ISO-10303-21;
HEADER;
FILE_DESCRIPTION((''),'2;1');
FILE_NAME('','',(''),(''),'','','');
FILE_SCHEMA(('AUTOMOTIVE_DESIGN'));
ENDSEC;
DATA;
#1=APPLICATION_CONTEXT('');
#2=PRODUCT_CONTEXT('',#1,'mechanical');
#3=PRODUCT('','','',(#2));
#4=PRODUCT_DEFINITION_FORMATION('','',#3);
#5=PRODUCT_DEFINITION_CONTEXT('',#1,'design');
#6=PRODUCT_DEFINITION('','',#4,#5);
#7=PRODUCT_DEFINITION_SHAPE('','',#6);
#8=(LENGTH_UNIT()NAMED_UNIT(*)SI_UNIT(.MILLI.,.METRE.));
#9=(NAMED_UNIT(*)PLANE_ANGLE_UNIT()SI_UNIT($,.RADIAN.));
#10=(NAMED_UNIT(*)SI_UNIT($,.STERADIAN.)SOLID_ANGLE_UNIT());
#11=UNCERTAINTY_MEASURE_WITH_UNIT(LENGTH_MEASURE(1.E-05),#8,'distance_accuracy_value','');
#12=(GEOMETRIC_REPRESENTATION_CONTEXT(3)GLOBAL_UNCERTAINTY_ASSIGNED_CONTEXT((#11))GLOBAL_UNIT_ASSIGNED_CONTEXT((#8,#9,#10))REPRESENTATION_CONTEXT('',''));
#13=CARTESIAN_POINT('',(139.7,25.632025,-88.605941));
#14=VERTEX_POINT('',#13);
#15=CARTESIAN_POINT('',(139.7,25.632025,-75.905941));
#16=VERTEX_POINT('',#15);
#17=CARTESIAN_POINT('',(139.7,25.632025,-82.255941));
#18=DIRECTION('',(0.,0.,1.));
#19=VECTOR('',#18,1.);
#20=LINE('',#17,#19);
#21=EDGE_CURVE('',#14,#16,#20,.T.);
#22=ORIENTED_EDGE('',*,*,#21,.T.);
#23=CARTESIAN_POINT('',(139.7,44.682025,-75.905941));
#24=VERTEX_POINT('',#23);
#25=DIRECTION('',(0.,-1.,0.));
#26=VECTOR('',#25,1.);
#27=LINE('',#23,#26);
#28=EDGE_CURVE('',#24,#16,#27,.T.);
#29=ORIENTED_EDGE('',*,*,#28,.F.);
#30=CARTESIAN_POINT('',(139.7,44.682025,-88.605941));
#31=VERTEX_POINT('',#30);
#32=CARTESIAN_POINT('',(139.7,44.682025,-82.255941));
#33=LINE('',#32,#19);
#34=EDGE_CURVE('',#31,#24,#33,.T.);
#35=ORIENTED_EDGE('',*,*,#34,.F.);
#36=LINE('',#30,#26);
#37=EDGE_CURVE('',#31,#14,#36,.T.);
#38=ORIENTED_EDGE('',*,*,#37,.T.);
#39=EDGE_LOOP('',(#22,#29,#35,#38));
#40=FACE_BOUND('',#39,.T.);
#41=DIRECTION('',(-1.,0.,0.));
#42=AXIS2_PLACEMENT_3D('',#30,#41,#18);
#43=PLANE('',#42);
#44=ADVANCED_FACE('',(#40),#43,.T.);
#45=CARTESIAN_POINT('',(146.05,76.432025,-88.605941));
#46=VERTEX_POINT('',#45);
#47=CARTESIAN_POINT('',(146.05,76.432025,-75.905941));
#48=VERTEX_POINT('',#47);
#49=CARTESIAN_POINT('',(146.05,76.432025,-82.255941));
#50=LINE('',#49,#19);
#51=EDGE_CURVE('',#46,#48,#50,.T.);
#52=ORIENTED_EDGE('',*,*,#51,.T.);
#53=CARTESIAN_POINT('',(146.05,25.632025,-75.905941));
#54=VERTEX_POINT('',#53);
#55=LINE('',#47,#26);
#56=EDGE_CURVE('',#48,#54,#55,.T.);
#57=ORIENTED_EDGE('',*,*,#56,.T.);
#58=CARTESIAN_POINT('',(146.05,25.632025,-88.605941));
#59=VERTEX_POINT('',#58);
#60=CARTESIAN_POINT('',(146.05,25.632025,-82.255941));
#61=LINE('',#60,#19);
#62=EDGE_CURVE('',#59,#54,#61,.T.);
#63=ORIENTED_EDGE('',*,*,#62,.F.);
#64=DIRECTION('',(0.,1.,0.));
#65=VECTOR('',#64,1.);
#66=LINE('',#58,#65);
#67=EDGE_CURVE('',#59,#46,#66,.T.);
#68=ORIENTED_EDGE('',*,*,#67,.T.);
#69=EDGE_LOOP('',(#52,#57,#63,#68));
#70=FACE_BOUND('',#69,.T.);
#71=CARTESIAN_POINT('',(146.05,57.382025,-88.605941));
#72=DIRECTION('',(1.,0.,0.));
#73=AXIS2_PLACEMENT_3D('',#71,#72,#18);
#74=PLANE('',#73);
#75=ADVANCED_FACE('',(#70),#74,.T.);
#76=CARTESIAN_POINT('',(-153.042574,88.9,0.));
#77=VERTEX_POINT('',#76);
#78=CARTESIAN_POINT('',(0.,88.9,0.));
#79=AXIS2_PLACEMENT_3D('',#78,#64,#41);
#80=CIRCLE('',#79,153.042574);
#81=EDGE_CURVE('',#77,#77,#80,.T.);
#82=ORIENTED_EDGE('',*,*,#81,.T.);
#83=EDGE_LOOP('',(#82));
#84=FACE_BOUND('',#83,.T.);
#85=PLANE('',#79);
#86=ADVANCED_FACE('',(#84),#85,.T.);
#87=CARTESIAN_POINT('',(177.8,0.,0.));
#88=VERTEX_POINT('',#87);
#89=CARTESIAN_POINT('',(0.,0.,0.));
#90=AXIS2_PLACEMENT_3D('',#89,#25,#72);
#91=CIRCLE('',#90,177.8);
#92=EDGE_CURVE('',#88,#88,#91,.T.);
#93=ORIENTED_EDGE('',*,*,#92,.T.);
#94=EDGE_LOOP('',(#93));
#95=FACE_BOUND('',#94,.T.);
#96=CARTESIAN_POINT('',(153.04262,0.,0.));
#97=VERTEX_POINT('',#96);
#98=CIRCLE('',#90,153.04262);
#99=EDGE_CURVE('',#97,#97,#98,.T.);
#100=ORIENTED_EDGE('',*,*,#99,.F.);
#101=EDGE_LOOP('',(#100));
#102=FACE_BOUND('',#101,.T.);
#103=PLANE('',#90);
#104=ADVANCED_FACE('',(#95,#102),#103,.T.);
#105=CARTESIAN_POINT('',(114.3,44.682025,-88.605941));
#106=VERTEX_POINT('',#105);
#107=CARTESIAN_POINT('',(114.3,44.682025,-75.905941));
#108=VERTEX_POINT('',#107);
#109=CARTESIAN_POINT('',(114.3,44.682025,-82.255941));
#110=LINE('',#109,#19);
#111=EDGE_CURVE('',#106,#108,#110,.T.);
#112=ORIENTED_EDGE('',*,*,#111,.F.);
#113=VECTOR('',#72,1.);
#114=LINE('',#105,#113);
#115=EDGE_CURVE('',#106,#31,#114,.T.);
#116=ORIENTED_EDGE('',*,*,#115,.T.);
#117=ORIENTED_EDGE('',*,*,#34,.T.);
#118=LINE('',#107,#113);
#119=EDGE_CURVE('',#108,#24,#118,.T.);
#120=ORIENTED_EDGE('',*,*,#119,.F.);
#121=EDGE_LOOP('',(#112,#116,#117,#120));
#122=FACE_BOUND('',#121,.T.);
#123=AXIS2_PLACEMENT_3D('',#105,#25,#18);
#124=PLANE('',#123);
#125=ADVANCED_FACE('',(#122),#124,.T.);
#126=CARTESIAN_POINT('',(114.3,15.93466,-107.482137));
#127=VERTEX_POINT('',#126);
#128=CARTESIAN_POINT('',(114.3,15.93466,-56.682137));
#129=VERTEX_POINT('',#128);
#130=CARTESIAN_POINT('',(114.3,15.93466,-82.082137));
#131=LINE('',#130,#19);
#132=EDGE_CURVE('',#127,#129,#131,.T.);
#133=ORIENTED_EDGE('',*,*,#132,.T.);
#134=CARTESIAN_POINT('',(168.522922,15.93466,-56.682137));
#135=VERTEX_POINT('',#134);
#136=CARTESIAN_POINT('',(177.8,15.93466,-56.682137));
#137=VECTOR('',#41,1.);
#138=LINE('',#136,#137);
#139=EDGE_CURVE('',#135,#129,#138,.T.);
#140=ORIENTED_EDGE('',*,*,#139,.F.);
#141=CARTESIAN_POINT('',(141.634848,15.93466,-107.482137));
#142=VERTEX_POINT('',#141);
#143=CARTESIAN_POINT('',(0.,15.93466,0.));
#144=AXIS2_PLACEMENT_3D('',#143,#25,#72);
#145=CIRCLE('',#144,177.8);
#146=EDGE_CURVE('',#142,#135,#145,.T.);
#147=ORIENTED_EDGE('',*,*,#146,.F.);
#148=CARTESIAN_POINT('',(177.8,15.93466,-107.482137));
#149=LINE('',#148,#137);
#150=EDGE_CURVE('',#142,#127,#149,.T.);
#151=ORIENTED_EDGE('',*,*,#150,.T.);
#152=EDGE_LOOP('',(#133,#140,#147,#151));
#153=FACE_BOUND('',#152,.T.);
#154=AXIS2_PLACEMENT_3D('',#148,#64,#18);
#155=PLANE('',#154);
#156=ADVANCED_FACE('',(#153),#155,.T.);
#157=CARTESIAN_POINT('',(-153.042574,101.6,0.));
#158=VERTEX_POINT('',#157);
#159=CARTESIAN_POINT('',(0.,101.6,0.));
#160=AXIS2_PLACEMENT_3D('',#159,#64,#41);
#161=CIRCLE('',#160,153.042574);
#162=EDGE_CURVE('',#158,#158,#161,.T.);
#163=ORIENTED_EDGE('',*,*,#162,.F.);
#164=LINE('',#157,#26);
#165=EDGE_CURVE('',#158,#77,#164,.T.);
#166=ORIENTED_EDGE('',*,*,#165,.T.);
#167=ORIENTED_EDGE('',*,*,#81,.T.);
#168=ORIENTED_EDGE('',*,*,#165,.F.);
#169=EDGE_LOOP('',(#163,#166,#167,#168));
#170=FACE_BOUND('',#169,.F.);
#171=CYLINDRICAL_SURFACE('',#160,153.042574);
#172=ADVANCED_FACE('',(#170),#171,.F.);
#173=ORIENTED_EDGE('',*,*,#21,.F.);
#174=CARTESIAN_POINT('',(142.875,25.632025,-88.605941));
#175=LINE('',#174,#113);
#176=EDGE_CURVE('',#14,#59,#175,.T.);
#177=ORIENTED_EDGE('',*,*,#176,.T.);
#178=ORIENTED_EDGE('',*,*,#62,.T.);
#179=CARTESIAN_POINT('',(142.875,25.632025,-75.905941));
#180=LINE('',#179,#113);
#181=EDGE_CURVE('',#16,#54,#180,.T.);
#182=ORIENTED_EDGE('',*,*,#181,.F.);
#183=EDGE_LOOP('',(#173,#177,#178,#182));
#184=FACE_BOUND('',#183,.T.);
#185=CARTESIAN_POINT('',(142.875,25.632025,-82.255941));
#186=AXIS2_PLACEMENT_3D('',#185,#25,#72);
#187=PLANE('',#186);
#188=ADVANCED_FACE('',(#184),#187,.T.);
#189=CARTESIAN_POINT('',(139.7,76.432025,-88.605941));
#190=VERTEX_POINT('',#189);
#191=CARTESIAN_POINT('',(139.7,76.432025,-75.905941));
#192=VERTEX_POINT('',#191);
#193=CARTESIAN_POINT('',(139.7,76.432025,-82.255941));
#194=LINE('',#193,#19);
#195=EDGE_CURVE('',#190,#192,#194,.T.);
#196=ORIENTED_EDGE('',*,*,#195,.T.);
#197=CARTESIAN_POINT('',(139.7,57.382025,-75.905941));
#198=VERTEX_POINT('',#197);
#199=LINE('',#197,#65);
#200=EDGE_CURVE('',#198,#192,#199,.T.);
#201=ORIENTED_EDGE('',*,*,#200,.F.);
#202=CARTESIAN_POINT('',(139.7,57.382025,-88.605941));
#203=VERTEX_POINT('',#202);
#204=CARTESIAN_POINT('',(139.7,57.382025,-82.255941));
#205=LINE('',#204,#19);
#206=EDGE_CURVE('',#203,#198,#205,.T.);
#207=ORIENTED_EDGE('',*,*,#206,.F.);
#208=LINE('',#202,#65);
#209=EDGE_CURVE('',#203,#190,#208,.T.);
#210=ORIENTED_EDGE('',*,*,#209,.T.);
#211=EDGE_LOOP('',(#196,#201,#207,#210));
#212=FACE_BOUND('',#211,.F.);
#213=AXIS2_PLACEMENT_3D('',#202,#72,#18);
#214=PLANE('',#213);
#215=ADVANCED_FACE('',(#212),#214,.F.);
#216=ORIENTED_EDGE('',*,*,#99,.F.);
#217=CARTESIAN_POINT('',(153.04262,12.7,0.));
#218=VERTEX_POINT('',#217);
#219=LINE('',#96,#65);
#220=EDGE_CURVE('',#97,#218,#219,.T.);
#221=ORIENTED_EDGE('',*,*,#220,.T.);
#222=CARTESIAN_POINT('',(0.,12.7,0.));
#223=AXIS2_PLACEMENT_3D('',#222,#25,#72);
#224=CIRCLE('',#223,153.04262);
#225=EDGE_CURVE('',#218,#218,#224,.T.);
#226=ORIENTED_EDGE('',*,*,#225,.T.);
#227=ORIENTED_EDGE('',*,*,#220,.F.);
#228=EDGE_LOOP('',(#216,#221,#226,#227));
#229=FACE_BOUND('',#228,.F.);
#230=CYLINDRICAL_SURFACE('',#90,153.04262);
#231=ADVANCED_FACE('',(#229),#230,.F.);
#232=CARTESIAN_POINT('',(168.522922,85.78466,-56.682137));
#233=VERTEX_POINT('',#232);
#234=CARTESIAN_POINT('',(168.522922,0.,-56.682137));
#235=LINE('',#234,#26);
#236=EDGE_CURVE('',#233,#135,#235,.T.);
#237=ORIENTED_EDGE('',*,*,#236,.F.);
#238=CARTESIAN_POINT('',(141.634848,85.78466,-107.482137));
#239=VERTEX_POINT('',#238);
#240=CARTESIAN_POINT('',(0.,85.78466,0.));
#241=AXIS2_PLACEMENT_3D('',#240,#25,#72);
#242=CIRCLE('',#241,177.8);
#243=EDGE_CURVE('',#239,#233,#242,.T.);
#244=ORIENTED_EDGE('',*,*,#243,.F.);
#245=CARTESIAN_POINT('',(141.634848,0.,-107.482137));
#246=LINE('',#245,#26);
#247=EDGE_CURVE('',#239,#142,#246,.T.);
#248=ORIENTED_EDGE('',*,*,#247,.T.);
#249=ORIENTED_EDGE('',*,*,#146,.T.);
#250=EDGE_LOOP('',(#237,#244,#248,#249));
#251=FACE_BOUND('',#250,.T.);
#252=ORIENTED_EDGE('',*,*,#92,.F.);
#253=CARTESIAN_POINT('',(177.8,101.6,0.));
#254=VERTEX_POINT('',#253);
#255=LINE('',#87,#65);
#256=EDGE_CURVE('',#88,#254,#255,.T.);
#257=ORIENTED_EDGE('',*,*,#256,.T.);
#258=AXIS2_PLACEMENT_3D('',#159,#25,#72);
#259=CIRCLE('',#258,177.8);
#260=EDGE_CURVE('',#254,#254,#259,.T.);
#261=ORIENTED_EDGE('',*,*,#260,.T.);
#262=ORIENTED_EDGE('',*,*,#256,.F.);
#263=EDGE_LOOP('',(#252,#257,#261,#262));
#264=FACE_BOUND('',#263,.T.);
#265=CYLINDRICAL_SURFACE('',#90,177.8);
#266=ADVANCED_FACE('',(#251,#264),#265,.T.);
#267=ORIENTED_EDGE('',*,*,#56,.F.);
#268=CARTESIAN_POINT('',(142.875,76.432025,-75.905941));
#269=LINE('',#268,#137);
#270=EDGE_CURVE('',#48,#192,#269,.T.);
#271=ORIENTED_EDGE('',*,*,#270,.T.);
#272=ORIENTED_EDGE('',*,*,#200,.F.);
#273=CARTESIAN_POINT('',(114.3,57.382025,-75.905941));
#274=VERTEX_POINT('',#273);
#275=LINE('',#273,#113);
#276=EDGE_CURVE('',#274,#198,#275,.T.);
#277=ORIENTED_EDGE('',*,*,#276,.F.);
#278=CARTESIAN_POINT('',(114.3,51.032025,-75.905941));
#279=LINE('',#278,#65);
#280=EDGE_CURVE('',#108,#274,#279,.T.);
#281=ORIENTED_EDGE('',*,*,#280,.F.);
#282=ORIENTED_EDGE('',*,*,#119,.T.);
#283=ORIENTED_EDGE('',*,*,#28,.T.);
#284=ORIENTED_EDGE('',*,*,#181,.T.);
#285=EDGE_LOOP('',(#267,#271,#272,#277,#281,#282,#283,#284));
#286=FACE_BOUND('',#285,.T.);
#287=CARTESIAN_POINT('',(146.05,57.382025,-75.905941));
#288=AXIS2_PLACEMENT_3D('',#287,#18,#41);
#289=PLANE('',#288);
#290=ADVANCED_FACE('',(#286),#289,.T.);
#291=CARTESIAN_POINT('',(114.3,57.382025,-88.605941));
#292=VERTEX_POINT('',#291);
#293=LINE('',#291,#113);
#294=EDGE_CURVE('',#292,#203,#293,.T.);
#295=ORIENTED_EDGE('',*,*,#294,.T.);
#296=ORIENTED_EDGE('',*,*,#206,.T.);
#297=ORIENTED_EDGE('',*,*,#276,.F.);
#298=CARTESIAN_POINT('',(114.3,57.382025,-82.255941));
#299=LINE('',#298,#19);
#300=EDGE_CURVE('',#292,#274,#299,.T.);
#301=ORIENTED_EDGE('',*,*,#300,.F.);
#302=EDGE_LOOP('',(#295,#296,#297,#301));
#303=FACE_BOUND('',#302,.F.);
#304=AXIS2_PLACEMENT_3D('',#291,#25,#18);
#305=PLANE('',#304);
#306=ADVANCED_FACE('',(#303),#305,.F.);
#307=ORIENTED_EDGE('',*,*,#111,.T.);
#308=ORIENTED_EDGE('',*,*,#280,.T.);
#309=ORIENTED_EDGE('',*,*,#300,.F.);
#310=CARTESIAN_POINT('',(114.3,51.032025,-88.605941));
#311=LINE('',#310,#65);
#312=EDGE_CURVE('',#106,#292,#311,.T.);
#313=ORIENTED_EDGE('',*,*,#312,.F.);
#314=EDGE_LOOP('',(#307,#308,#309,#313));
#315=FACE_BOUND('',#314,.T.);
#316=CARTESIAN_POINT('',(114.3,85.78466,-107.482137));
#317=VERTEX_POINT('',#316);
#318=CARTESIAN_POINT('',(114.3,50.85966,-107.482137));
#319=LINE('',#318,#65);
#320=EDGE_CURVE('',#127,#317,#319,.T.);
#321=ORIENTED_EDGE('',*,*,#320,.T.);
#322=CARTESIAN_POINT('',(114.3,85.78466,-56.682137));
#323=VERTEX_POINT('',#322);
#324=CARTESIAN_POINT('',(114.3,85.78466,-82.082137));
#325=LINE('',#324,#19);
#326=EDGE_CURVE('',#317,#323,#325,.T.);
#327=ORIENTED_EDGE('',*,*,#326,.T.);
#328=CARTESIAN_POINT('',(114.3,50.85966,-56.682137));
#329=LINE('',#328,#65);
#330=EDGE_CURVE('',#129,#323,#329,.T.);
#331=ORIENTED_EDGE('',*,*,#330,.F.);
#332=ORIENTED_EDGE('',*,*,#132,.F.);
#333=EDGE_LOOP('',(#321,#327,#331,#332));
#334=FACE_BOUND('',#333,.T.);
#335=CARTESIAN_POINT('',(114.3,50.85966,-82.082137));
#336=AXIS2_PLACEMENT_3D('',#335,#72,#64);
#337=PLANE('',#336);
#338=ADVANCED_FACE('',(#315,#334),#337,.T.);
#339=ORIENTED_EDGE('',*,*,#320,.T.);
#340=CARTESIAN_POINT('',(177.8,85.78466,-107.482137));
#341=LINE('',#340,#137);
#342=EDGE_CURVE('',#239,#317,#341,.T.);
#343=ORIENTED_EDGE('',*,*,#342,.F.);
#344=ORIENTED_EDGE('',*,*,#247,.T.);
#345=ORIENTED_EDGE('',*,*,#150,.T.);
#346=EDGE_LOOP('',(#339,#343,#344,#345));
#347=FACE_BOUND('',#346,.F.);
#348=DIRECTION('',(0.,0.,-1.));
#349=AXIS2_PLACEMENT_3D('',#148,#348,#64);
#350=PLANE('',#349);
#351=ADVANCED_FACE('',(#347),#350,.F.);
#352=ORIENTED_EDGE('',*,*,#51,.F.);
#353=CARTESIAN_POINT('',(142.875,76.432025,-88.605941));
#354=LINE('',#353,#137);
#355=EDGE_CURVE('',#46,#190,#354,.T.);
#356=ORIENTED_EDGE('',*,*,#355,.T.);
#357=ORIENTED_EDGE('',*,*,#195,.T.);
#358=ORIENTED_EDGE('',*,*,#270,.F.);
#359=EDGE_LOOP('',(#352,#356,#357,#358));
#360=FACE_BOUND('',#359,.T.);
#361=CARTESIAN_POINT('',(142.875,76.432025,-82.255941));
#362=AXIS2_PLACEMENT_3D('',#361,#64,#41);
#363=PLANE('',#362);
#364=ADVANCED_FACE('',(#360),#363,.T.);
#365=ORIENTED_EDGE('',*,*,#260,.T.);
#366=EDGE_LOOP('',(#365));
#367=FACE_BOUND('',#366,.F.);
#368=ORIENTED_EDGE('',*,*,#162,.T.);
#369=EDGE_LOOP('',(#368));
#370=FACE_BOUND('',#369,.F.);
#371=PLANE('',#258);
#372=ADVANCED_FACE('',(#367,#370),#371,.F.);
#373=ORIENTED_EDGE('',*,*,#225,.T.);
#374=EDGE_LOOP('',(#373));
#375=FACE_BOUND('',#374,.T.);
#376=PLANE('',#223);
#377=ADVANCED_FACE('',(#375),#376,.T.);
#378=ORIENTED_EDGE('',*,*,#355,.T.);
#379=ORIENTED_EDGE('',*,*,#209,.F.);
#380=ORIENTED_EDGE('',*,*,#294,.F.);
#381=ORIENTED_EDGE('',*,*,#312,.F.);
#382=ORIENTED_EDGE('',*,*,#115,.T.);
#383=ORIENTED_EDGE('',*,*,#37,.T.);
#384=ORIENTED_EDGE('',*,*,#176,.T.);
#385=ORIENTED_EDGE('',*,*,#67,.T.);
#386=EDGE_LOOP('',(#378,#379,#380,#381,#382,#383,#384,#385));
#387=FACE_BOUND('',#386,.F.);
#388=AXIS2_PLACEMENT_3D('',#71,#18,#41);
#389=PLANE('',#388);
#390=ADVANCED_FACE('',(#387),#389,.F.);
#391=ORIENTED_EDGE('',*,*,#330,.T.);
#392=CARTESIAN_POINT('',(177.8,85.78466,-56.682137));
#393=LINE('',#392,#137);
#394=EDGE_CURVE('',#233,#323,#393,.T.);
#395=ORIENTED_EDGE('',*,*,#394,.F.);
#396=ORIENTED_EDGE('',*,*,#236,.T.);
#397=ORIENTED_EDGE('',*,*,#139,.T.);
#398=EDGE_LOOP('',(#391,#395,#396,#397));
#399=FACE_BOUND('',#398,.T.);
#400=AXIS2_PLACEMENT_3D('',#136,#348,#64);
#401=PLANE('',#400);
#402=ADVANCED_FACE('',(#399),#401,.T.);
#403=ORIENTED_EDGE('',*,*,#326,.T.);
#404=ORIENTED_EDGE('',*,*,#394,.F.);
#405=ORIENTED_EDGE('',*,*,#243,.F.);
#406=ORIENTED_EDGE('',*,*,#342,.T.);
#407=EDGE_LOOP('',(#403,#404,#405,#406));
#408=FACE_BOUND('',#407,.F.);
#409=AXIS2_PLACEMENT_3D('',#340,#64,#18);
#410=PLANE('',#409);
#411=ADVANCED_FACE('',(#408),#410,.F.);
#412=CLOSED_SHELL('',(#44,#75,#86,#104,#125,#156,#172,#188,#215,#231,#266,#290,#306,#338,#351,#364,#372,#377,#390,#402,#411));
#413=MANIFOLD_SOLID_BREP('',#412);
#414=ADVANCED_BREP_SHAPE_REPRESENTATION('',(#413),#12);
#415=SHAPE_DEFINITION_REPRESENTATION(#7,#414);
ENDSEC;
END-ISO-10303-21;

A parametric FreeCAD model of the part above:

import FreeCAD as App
import Part
import Sketcher

V = App.Vector
Q = App.Units.Quantity


def add_polygon(sketch, points):
    """Adds a closed chain of lines whose ends are joined by coincident constraints."""
    first, n = sketch.GeometryCount, len(points)
    for a, b in zip(points, points[1:] + points[:1]):
        sketch.addGeometry(Part.LineSegment(App.Vector(*a, 0), App.Vector(*b, 0)), False)
    for i in range(n):
        sketch.addConstraint(Sketcher.Constraint("Coincident", first + i, 2, first + (i + 1) % n, 1))

doc = App.newDocument("Part")
body = doc.addObject("PartDesign::Body", "Body")

# Sketch on XZ plane
sketch1 = body.newObject("Sketcher::SketchObject", "Sketch")
sketch1.AttachmentSupport = (doc.getObject("XZ_Plane"), [""])
sketch1.MapMode = "FlatFace"
sketch1.addGeometry(Part.Circle(V(0, 0, 0), V(0, 0, 1), 178), False)
sketch1.addConstraint(Sketcher.Constraint("Coincident", 0, 3, -1, 1))
sketch1.addConstraint(Sketcher.Constraint("Diameter", 0, Q("14 in")))
pad1 = body.newObject("PartDesign::Pad", "Pad")
pad1.Profile = sketch1
pad1.Length = Q("4 in")
pad1.Reversed = True

# Sketch on XZ plane
sketch2 = body.newObject("Sketcher::SketchObject", "Sketch001")
sketch2.AttachmentSupport = (doc.getObject("XZ_Plane"), [""])
sketch2.MapMode = "FlatFace"
sketch2.AttachmentOffset = App.Placement(V(0, 0, -4 * 25.4), App.Rotation())
sketch2.addGeometry(Part.Circle(V(0, 0, 0), V(0, 0, 1), 153), False)
sketch2.addConstraint(Sketcher.Constraint("Coincident", 0, 3, -1, 1))
sketch2.addConstraint(Sketcher.Constraint("Diameter", 0, Q("306.085148 mm")))
pocket1 = body.newObject("PartDesign::Pocket", "Pocket")
pocket1.Profile = sketch2
pocket1.Length = Q("0.5 in")
pocket1.Reversed = True

# Sketch on XZ plane
sketch3 = body.newObject("Sketcher::SketchObject", "Sketch002")
sketch3.AttachmentSupport = (doc.getObject("XZ_Plane"), [""])
sketch3.MapMode = "FlatFace"
sketch3.addGeometry(Part.Circle(V(0, 0, 0), V(0, 0, 1), 153), False)
sketch3.addConstraint(Sketcher.Constraint("Coincident", 0, 3, -1, 1))
sketch3.addConstraint(Sketcher.Constraint("Diameter", 0, Q("12.0506 in")))
pocket2 = body.newObject("PartDesign::Pocket", "Pocket001")
pocket2.Profile = sketch3
pocket2.Length = Q("0.5 in")

# Sketch on YZ plane
sketch4 = body.newObject("Sketcher::SketchObject", "Sketch003")
sketch4.AttachmentSupport = (doc.getObject("YZ_Plane"), [""])
sketch4.MapMode = "FlatFace"
sketch4.AttachmentOffset = App.Placement(V(0, 0, 7 * 25.4), App.Rotation())
add_polygon(sketch4, [(16, -57), (16, -107), (86, -107), (86, -57)])  # lines 0-3
sketch4.addConstraint(Sketcher.Constraint("Vertical", 0))
sketch4.addConstraint(Sketcher.Constraint("Horizontal", 1))
sketch4.addConstraint(Sketcher.Constraint("Vertical", 2))
sketch4.addConstraint(Sketcher.Constraint("Horizontal", 3))
sketch4.addConstraint(Sketcher.Constraint("DistanceY", 0, 2, 0, 1, Q("2 in")))
sketch4.addConstraint(Sketcher.Constraint("DistanceX", 1, 1, 1, 2, Q("2.75 in")))
sketch4.addConstraint(Sketcher.Constraint("DistanceX", -1, 1, 0, 2, Q("15.93466 mm")))
sketch4.addConstraint(Sketcher.Constraint("DistanceY", 0, 2, -1, 1, Q("107.482137 mm")))
pocket3 = body.newObject("PartDesign::Pocket", "Pocket002")
pocket3.Profile = sketch4
pocket3.Length = Q("2.5 in")

# Sketch on YZ plane
sketch5 = body.newObject("Sketcher::SketchObject", "Sketch004")
sketch5.AttachmentSupport = (doc.getObject("YZ_Plane"), [""])
sketch5.MapMode = "FlatFace"
sketch5.AttachmentOffset = App.Placement(V(0, 0, 4.5 * 25.4), App.Rotation())
add_polygon(sketch5, [(45, -76), (45, -89), (57, -89), (57, -76)])  # lines 0-3
sketch5.addConstraint(Sketcher.Constraint("Vertical", 0))
sketch5.addConstraint(Sketcher.Constraint("Horizontal", 1))
sketch5.addConstraint(Sketcher.Constraint("Vertical", 2))
sketch5.addConstraint(Sketcher.Constraint("Horizontal", 3))
sketch5.addConstraint(Sketcher.Constraint("Equal", 3, 0))
sketch5.addConstraint(Sketcher.Constraint("DistanceX", 1, 1, 1, 2, Q("0.5 in")))
sketch5.addConstraint(Sketcher.Constraint("DistanceY", 0, 2, -1, 1, Q("88.605941 mm")))
sketch5.addConstraint(Sketcher.Constraint("DistanceX", -1, 1, 0, 2, Q("44.682025 mm")))
pad2 = body.newObject("PartDesign::Pad", "Pad001")
pad2.Profile = sketch5
pad2.Length = Q("1.25 in")

# Sketch on XZ plane
sketch6 = body.newObject("Sketcher::SketchObject", "Sketch005")
sketch6.AttachmentSupport = (doc.getObject("XZ_Plane"), [""])
sketch6.MapMode = "FlatFace"
sketch6.AttachmentOffset = App.Placement(V(0, 0, -44.682025), App.Rotation())
add_polygon(sketch6, [(140, -76), (140, -89), (146, -89), (146, -76)])  # lines 0-3
sketch6.addConstraint(Sketcher.Constraint("Vertical", 0))
sketch6.addConstraint(Sketcher.Constraint("Horizontal", 1))
sketch6.addConstraint(Sketcher.Constraint("Vertical", 2))
sketch6.addConstraint(Sketcher.Constraint("Horizontal", 3))
sketch6.addConstraint(Sketcher.Constraint("DistanceY", 0, 2, 0, 1, Q("0.5 in")))
sketch6.addConstraint(Sketcher.Constraint("DistanceX", 1, 1, 1, 2, Q("0.25 in")))
sketch6.addConstraint(Sketcher.Constraint("DistanceX", -1, 1, 0, 2, Q("5.5 in")))
sketch6.addConstraint(Sketcher.Constraint("DistanceY", 0, 2, -1, 1, Q("88.605941 mm")))
pad3 = body.newObject("PartDesign::Pad", "Pad002")
pad3.Profile = sketch6
pad3.Length = Q("0.75 in")

# Sketch on XZ plane
sketch7 = body.newObject("Sketcher::SketchObject", "Sketch006")
sketch7.AttachmentSupport = (doc.getObject("XZ_Plane"), [""])
sketch7.MapMode = "FlatFace"
sketch7.AttachmentOffset = App.Placement(V(0, 0, -57.382025), App.Rotation())
add_polygon(sketch7, [(146, -76), (146, -89), (140, -89), (140, -76)])  # lines 0-3
sketch7.addConstraint(Sketcher.Constraint("Vertical", 0))
sketch7.addConstraint(Sketcher.Constraint("Horizontal", 1))
sketch7.addConstraint(Sketcher.Constraint("Vertical", 2))
sketch7.addConstraint(Sketcher.Constraint("Horizontal", 3))
sketch7.addConstraint(Sketcher.Constraint("DistanceY", 0, 2, 0, 1, Q("0.5 in")))
sketch7.addConstraint(Sketcher.Constraint("DistanceX", 1, 2, 1, 1, Q("0.25 in")))
sketch7.addConstraint(Sketcher.Constraint("DistanceX", -1, 1, 1, 2, Q("5.5 in")))
sketch7.addConstraint(Sketcher.Constraint("DistanceY", 0, 2, -1, 1, Q("88.605941 mm")))
pad4 = body.newObject("PartDesign::Pad", "Pad003")
pad4.Profile = sketch7
pad4.Length = Q("0.75 in")
pad4.Reversed = True

doc.recompute()
